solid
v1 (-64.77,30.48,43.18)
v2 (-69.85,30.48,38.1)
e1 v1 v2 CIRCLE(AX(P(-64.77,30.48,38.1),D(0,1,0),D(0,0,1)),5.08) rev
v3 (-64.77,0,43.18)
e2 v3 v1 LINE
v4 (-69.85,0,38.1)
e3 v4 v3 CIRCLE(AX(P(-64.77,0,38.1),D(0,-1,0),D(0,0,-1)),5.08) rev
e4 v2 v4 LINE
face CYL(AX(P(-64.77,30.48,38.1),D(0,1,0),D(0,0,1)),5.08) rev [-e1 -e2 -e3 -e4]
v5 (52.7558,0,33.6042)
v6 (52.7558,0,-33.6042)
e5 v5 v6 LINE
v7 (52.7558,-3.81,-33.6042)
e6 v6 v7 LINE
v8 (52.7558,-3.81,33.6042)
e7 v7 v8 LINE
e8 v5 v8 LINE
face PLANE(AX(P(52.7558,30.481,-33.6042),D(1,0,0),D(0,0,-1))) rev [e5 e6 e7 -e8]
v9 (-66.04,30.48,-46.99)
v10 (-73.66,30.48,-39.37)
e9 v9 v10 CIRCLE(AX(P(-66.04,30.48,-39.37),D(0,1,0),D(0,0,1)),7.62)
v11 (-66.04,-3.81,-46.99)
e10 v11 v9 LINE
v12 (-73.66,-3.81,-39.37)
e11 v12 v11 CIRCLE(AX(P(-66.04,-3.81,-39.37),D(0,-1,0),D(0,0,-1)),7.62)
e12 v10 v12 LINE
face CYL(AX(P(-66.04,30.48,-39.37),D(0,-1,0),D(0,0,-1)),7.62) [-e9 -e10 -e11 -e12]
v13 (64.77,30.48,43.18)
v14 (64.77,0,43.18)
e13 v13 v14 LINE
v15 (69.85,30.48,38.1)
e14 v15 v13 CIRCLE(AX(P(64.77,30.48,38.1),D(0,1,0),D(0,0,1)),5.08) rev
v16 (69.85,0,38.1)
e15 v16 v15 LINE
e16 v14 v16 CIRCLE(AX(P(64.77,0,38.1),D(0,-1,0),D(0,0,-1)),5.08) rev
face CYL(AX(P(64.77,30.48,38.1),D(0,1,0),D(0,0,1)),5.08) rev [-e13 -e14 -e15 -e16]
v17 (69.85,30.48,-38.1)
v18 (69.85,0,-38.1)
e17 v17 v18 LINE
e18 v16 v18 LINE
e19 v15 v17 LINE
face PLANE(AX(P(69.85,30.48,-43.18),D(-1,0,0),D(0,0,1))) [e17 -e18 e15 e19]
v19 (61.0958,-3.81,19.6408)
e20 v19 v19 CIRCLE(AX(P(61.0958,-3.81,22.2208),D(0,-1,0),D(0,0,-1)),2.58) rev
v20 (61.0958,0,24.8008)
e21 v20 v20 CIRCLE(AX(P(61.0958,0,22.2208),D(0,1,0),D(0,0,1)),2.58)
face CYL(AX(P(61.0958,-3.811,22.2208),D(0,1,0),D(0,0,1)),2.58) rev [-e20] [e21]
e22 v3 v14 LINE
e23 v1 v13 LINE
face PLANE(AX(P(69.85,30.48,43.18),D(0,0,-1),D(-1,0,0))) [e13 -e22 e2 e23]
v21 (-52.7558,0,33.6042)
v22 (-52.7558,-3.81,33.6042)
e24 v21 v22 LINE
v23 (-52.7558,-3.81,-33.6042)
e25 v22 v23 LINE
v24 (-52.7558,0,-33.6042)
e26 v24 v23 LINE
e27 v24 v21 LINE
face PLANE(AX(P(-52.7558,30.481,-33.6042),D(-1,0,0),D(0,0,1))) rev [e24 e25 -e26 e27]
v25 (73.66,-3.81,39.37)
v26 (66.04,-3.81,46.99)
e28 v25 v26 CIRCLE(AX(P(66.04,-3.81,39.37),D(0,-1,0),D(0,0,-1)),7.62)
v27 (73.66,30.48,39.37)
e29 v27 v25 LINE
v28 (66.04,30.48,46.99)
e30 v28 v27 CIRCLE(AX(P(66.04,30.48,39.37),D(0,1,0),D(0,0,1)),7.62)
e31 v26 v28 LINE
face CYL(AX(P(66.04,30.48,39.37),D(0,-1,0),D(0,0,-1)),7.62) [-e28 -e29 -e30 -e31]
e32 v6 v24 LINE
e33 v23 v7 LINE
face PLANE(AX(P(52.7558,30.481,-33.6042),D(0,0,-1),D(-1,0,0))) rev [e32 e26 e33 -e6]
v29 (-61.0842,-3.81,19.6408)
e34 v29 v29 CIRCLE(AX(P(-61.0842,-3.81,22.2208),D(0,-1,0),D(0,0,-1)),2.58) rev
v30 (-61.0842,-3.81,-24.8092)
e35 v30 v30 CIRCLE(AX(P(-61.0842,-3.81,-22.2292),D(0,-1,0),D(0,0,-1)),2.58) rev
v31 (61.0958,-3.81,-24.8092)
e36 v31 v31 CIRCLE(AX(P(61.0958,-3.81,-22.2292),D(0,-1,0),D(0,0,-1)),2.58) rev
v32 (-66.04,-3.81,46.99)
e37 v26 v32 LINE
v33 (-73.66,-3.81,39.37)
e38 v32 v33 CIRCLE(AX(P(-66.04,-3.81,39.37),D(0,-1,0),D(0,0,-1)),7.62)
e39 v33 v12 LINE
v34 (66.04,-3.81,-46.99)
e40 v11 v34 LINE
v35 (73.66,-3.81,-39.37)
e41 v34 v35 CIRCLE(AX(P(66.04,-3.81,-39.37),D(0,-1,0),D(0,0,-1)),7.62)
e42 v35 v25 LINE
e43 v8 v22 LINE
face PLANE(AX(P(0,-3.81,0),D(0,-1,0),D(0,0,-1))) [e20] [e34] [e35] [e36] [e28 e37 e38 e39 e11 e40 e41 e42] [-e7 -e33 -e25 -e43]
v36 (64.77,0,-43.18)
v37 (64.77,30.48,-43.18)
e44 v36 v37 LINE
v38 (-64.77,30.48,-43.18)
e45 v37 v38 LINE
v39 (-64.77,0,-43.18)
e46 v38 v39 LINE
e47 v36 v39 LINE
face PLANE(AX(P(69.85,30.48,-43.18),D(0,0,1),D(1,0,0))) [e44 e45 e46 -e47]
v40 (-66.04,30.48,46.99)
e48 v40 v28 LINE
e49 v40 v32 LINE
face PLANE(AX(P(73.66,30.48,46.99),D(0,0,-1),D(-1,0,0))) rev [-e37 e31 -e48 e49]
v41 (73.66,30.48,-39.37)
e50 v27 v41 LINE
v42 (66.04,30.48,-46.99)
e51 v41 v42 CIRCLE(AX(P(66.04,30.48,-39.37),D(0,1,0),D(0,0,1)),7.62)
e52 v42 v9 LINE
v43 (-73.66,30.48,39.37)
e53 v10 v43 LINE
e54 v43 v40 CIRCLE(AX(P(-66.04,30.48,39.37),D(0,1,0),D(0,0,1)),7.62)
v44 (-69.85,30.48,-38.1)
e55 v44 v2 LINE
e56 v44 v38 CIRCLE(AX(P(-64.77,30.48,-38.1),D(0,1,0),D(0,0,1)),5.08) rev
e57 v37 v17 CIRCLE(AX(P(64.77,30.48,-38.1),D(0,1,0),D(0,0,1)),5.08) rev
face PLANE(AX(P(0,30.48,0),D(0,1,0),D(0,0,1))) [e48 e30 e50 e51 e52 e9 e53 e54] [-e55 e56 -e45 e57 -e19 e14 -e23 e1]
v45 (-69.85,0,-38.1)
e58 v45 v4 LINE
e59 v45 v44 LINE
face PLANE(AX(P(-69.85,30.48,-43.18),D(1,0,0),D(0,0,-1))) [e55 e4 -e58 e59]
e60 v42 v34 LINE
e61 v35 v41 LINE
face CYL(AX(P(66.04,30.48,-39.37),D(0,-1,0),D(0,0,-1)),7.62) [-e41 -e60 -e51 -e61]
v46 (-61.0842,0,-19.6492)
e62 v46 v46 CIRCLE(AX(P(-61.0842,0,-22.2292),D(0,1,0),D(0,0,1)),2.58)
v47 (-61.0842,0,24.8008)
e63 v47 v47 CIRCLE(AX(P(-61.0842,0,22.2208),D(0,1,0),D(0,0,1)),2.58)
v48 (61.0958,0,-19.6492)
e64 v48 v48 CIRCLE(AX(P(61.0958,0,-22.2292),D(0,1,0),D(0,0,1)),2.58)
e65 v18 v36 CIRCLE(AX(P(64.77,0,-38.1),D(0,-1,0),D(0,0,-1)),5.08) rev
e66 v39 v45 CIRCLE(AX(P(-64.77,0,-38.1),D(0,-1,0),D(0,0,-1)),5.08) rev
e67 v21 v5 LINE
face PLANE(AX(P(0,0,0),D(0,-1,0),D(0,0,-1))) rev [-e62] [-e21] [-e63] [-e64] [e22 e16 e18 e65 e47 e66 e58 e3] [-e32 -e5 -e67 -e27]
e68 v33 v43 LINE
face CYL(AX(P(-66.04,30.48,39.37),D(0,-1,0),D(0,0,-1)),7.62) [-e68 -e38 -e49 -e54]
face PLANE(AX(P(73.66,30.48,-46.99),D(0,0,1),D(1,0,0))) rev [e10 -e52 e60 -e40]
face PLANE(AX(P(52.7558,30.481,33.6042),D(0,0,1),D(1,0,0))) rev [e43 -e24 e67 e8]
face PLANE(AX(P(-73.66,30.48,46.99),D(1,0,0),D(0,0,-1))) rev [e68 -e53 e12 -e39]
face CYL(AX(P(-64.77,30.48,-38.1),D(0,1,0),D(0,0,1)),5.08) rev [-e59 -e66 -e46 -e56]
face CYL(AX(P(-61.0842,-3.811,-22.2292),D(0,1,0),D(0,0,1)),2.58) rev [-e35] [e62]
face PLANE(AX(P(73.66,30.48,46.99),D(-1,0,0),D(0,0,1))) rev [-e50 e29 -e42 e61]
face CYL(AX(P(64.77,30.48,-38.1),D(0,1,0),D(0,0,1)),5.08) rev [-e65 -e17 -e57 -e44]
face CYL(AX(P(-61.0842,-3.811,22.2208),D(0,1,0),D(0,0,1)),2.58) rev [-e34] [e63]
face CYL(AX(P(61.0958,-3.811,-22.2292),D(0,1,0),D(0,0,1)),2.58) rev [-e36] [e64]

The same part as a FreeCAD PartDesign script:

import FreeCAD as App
import Part
import Sketcher
from FreeCAD import Vector
Q = App.Units.Quantity


def edges_at(feature, points):
    """Names of the edges that pass closest to the given points."""
    edges = feature.Shape.Edges
    near = lambda p: min(range(len(edges)), key=lambda i: edges[i].distToShape(Part.Vertex(*p))[0])
    return sorted({f"Edge{near(p) + 1}" for p in points})


def add_polygon(sketch, points):
    """Adds a closed chain of lines whose ends are joined by coincident constraints."""
    first, n = sketch.GeometryCount, len(points)
    for a, b in zip(points, points[1:] + points[:1]):
        sketch.addGeometry(Part.LineSegment(App.Vector(*a, 0), App.Vector(*b, 0)), False)
    for i in range(n):
        sketch.addConstraint(Sketcher.Constraint("Coincident", first + i, 2, first + (i + 1) % n, 1))

doc = App.newDocument("Part")
body = doc.addObject("PartDesign::Body", "Body")

sketch1 = body.newObject("Sketcher::SketchObject", "Sketch")
sketch1.AttachmentSupport = (doc.getObject("XZ_Plane"), [""])
sketch1.MapMode = "FlatFace"
add_polygon(sketch1, [(-74, -47), (-74, 47), (74, 47), (74, -47)])
add_polygon(sketch1, [(70, 43), (-70, 43), (-70, -43), (70, -43)])
sketch1.addConstraint([
    Sketcher.Constraint("Vertical", 0),
    Sketcher.Constraint("Horizontal", 1),
    Sketcher.Constraint("Vertical", 2),
    Sketcher.Constraint("Horizontal", 3),
    Sketcher.Constraint("Horizontal", 4),
    Sketcher.Constraint("Vertical", 5),
    Sketcher.Constraint("Horizontal", 6),
    Sketcher.Constraint("Vertical", 7),
    Sketcher.Constraint("Symmetric", 0, 2, 2, 2, -1, 1),
    Sketcher.Constraint("Symmetric", 4, 2, 6, 2, -1, 1),
    Sketcher.Constraint("DistanceX", 1, 1, 1, 2, Q("5.8 in")),
    Sketcher.Constraint("DistanceX", 4, 2, 4, 1, Q("5.5 in")),
    Sketcher.Constraint("DistanceY", 0, 1, 0, 2, Q("3.7 in")),
    Sketcher.Constraint("DistanceY", 5, 2, 5, 1, Q("3.4 in")),
])
pad1 = body.newObject("PartDesign::Pad", "Pad")
pad1.Profile = sketch1
pad1.Length = Q("1.2 in")
pad1.Reversed = True

sketch2 = body.newObject("Sketcher::SketchObject", "Sketch001")
sketch2.AttachmentSupport = (doc.getObject("XZ_Plane"), [""])
sketch2.MapMode = "FlatFace"
add_polygon(sketch2, [(74, -47), (74, 47), (-74, 47), (-74, -47)])
sketch2.addConstraint([
    Sketcher.Constraint("Vertical", 0),
    Sketcher.Constraint("Horizontal", 1),
    Sketcher.Constraint("Vertical", 2),
    Sketcher.Constraint("Horizontal", 3),
    Sketcher.Constraint("Symmetric", 0, 2, 2, 2, -1, 1),
    Sketcher.Constraint("DistanceX", 1, 2, 1, 1, Q("5.8 in")),
    Sketcher.Constraint("DistanceY", 0, 1, 0, 2, Q("3.7 in")),
])
pad2 = body.newObject("PartDesign::Pad", "Pad001")
pad2.Profile = sketch2
pad2.Length = Q("0.15 in")
doc.recompute()

fillet = body.newObject("PartDesign::Fillet", "Fillet")
fillet.Base = (pad2, edges_at(pad2, [
    (-73.66, 13.335, -46.99),
    (73.66, 13.335, -46.99),
    (73.66, 13.335, 46.99),
    (-73.66, 13.335, 46.99),
]))
fillet.Radius = Q("0.3 in")
doc.recompute()

fillet2 = body.newObject("PartDesign::Fillet", "Fillet001")
fillet2.Base = (fillet, edges_at(fillet, [
    (-69.85, 15.24, -43.18),
    (-69.85, 15.24, 43.18),
    (69.85, 15.24, 43.18),
    (69.85, 15.24, -43.18),
]))
fillet2.Radius = Q("0.2 in")

sketch3 = body.newObject("Sketcher::SketchObject", "Sketch002")
sketch3.AttachmentSupport = (doc.getObject("XZ_Plane"), [""])
sketch3.MapMode = "FlatFace"
sketch3.AttachmentOffset = App.Placement(Vector(0, 0, 0.15 * 25.4), App.Rotation())
add_polygon(sketch3, [(-53, 34), (-53, -34), (53, -34), (53, 34)])
sketch3.addConstraint([
    Sketcher.Constraint("Vertical", 0),
    Sketcher.Constraint("Horizontal", 1),
    Sketcher.Constraint("Vertical", 2),
    Sketcher.Constraint("Horizontal", 3),
    Sketcher.Constraint("Symmetric", 0, 2, 2, 2, -1, 1),
    Sketcher.Constraint("DistanceX", 1, 1, 1, 2, Q("4.154 in")),
    Sketcher.Constraint("DistanceY", 0, 2, 0, 1, Q("2.646 in")),
])
pocket1 = body.newObject("PartDesign::Pocket", "Pocket")
pocket1.Profile = sketch3
pocket1.Type = "UpToFirst"

sketch4 = body.newObject("Sketcher::SketchObject", "Sketch003")
sketch4.AttachmentSupport = (doc.getObject("XZ_Plane"), [""])
sketch4.MapMode = "FlatFace"
sketch4.addGeometry(Part.Circle(Vector(-61.1, 22.2, 0), Vector(0, 0, 1), 2.6), False)
sketch4.addConstraint([
    Sketcher.Constraint("Diameter", 0, 5.16),
    Sketcher.Constraint("DistanceX", 0, 3, -1, 1, 61.0842),
    Sketcher.Constraint("DistanceY", -1, 1, 0, 3, 22.2208),
])
pocket2 = body.newObject("PartDesign::Pocket", "Pocket001")
pocket2.Profile = sketch4
pocket2.Type = "UpToFirst"
pocket2.Reversed = True

sketch5 = body.newObject("Sketcher::SketchObject", "Sketch004")
sketch5.AttachmentSupport = (doc.getObject("XZ_Plane"), [""])
sketch5.MapMode = "FlatFace"
sketch5.addGeometry(Part.Circle(Vector(61.1, 22.2, 0), Vector(0, 0, 1), 2.6), False)
sketch5.addConstraint([
    Sketcher.Constraint("Diameter", 0, 5.16),
    Sketcher.Constraint("DistanceX", -1, 1, 0, 3, 61.0958),
    Sketcher.Constraint("DistanceY", -1, 1, 0, 3, 22.2208),
])
pocket3 = body.newObject("PartDesign::Pocket", "Pocket002")
pocket3.Profile = sketch5
pocket3.Type = "UpToFirst"
pocket3.Reversed = True

sketch6 = body.newObject("Sketcher::SketchObject", "Sketch005")
sketch6.AttachmentSupport = (doc.getObject("XZ_Plane"), [""])
sketch6.MapMode = "FlatFace"
sketch6.addGeometry(Part.Circle(Vector(61.1, -22.2, 0), Vector(0, 0, 1), 2.6), False)
sketch6.addConstraint([
    Sketcher.Constraint("Diameter", 0, 5.16),
    Sketcher.Constraint("DistanceX", -1, 1, 0, 3, 61.0958),
    Sketcher.Constraint("DistanceY", 0, 3, -1, 1, 22.2292),
])
pocket4 = body.newObject("PartDesign::Pocket", "Pocket003")
pocket4.Profile = sketch6
pocket4.Type = "UpToFirst"
pocket4.Reversed = True

sketch7 = body.newObject("Sketcher::SketchObject", "Sketch006")
sketch7.AttachmentSupport = (doc.getObject("XZ_Plane"), [""])
sketch7.MapMode = "FlatFace"
sketch7.addGeometry(Part.Circle(Vector(-61.1, -22.2, 0), Vector(0, 0, 1), 2.6), False)
sketch7.addConstraint([
    Sketcher.Constraint("Diameter", 0, 5.16),
    Sketcher.Constraint("DistanceX", 0, 3, -1, 1, 61.0842),
    Sketcher.Constraint("DistanceY", 0, 3, -1, 1, 22.2292),
])
pocket5 = body.newObject("PartDesign::Pocket", "Pocket004")
pocket5.Profile = sketch7
pocket5.Type = "UpToFirst"
pocket5.Reversed = True

doc.recompute()
